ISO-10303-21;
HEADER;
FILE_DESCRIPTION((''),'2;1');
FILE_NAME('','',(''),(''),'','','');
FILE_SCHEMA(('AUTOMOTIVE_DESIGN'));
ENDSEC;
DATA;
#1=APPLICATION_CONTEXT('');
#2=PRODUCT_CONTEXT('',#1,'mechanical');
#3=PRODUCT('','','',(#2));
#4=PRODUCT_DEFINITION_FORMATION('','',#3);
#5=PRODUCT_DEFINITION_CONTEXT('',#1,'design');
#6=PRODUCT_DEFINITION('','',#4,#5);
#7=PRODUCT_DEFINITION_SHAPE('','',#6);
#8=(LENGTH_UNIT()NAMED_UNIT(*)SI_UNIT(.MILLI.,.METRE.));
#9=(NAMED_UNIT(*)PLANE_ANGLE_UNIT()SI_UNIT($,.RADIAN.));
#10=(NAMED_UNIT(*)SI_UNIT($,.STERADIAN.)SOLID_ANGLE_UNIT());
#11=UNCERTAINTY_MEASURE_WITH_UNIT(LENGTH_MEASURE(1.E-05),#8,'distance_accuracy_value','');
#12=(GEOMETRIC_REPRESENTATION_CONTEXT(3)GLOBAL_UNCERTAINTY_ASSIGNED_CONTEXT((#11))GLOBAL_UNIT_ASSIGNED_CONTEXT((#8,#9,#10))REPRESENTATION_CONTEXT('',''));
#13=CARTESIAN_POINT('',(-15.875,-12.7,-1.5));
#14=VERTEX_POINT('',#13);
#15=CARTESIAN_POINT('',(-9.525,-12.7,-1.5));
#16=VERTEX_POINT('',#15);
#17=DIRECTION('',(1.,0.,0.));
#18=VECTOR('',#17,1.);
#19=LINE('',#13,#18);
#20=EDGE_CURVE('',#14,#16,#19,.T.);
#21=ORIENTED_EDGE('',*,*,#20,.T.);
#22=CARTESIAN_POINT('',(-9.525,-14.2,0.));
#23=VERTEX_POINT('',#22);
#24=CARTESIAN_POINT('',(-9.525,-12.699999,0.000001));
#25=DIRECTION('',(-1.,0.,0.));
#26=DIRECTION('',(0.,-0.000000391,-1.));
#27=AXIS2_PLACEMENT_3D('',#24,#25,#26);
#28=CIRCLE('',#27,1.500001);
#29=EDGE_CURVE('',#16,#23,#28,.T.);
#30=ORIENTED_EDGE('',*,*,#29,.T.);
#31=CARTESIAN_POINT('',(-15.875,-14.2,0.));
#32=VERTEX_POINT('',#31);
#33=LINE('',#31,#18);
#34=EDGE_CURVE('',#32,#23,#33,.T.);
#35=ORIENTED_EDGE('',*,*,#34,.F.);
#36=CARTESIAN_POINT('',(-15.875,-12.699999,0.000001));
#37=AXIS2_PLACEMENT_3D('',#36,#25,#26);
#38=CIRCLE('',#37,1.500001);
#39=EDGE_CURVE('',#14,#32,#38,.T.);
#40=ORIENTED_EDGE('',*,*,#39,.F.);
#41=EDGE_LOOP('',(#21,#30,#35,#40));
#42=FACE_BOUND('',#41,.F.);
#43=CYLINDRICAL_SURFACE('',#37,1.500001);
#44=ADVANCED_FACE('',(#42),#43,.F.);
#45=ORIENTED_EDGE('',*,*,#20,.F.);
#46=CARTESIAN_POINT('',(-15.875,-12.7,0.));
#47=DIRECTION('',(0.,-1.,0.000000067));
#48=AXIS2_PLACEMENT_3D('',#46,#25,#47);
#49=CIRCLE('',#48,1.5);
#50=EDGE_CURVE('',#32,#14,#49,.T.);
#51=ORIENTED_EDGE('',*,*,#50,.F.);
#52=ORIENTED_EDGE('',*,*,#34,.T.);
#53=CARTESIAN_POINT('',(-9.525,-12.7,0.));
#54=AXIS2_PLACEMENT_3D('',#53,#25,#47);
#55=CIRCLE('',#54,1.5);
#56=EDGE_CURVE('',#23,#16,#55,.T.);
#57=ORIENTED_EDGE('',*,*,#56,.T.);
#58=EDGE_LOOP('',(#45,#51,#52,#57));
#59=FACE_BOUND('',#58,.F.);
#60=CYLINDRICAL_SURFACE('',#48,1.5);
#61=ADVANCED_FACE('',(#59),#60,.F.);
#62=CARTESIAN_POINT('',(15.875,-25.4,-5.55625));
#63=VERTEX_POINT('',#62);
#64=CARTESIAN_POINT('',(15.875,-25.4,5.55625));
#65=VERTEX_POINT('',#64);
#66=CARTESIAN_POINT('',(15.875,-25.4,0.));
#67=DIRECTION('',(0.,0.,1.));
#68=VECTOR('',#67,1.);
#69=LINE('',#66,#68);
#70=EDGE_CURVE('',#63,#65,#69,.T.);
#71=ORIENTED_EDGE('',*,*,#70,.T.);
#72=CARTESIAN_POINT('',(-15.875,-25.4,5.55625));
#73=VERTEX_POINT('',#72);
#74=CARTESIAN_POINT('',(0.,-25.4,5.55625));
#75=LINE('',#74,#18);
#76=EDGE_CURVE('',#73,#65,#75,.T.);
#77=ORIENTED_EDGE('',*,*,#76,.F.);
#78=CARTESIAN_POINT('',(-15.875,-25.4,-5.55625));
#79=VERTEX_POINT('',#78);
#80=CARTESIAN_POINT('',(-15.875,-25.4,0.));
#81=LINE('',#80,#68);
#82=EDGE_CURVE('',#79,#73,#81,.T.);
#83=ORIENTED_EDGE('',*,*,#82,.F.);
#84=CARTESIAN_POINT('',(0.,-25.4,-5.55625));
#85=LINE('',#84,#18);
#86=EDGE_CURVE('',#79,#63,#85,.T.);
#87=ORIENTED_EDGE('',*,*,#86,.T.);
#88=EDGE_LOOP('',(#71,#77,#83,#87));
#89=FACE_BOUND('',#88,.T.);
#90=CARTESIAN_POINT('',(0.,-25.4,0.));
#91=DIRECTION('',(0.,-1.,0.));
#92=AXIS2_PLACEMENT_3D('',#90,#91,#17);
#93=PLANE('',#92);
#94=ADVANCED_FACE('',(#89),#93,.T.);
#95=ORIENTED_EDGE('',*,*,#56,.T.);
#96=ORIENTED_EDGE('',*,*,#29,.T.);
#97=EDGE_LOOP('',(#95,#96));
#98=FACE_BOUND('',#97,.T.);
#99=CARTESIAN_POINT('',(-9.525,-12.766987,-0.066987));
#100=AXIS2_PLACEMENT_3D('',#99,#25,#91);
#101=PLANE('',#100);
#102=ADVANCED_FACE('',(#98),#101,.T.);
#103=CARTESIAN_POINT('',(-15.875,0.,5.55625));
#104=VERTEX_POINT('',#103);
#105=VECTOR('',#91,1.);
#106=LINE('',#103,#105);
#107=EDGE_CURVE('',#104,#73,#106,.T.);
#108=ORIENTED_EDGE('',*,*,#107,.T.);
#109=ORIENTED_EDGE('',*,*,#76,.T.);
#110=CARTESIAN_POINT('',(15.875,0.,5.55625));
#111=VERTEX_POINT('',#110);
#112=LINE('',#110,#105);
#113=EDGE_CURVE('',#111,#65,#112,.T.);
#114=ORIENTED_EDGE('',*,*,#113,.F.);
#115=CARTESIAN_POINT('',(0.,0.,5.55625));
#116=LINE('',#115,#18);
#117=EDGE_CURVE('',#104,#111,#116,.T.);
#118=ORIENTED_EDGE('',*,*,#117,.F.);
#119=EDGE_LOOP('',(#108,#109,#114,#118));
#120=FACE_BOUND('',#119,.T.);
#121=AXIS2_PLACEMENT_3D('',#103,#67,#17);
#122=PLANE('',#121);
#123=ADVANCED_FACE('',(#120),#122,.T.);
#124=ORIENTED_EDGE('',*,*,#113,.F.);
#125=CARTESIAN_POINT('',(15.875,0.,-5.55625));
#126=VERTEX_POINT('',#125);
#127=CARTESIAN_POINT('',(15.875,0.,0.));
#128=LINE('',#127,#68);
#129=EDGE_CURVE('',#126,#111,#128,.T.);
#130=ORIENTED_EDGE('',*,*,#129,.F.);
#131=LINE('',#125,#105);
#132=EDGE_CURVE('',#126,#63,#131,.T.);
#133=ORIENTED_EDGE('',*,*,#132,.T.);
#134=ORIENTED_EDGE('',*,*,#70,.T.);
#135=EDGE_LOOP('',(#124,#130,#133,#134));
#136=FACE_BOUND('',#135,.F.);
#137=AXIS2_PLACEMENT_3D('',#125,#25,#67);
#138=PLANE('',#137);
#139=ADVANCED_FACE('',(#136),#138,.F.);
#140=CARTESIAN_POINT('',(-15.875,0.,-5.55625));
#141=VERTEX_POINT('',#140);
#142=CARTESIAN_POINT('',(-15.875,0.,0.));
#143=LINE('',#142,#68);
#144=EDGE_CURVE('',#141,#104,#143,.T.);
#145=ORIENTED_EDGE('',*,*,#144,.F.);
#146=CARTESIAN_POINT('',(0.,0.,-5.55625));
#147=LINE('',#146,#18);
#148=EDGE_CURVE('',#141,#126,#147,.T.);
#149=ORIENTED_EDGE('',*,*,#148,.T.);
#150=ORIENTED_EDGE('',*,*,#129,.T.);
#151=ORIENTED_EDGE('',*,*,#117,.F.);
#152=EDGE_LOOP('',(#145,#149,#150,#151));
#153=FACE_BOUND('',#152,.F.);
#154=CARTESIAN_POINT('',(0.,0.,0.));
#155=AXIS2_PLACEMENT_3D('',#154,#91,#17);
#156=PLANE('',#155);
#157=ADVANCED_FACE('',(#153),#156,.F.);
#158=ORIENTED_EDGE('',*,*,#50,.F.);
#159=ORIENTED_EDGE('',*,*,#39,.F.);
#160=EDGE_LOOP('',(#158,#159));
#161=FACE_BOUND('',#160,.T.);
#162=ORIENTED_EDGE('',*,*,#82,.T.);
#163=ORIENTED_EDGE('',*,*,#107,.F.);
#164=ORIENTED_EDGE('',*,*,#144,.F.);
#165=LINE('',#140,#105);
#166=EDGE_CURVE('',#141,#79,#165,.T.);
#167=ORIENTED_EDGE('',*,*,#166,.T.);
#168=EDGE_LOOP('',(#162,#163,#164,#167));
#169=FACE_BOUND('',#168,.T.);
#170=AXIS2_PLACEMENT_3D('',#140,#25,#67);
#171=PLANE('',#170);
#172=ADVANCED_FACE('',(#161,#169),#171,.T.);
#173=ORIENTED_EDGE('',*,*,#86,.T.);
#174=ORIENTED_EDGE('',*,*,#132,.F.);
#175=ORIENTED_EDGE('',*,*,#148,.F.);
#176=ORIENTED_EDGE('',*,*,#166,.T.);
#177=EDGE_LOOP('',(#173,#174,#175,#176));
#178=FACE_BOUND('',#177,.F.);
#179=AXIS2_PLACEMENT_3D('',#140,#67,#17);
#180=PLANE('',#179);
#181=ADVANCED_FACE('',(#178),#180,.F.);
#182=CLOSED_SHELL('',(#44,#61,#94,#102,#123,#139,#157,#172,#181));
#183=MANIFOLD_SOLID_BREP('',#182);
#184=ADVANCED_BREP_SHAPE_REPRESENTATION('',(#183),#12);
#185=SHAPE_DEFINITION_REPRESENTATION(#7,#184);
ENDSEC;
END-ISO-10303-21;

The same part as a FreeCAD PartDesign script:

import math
import FreeCAD as App
import Part
import Sketcher

V = App.Vector
Q = App.Units.Quantity


def add_polygon(sketch, points):
    """Adds a closed chain of lines whose ends are joined by coincident constraints."""
    first, n = sketch.GeometryCount, len(points)
    for a, b in zip(points, points[1:] + points[:1]):
        sketch.addGeometry(Part.LineSegment(App.Vector(*a, 0), App.Vector(*b, 0)), False)
    for i in range(n):
        sketch.addConstraint(Sketcher.Constraint("Coincident", first + i, 2, first + (i + 1) % n, 1))

doc = App.newDocument("Part")
body = doc.addObject("PartDesign::Body", "Body")

# Sketch on XZ plane
sketch1 = body.newObject("Sketcher::SketchObject", "Sketch")
sketch1.AttachmentSupport = (doc.getObject("XZ_Plane"), [""])
sketch1.MapMode = "FlatFace"
add_polygon(sketch1, [(-16, 6), (-16, -6), (16, -6), (16, 6)])  # lines 0-3
sketch1.addConstraint([
    Sketcher.Constraint("Vertical", 0),
    Sketcher.Constraint("Horizontal", 1),
    Sketcher.Constraint("Vertical", 2),
    Sketcher.Constraint("Horizontal", 3),
    Sketcher.Constraint("Symmetric", 0, 2, 2, 2, -1, 1),
    Sketcher.Constraint("DistanceX", 1, 1, 1, 2, Q("1.25 in")),
    Sketcher.Constraint("DistanceY", 0, 2, 0, 1, Q("0.4375 in")),
])
pad1 = body.newObject("PartDesign::Pad", "Pad")
pad1.Profile = sketch1
pad1.Length = Q("1 in")

# Sketch on YZ plane
sketch2 = body.newObject("Sketcher::SketchObject", "Sketch001")
sketch2.AttachmentSupport = (doc.getObject("YZ_Plane"), [""])
sketch2.MapMode = "FlatFace"
sketch2.AttachmentOffset = App.Placement(V(0, 0, -0.625 * 25.4), App.Rotation())
sketch2.addGeometry([
    Part.ArcOfCircle(Part.Circle(V(-12.7, 0, 0), V(0, 0, 1), 1.5), math.radians(-180), math.radians(-90)),
    Part.ArcOfCircle(Part.Circle(V(-12.7, 0, 0), V(0, 0, 1), 1.5), math.radians(-90), math.radians(180)),
], False)
sketch2.addConstraint([
    Sketcher.Constraint("Tangent", 0, 1, 1, 2),
    Sketcher.Constraint("Coincident", 1, 1, 0, 2),
    Sketcher.Constraint("PointOnObject", 0, 3, -1),
    Sketcher.Constraint("PointOnObject", 0, 1, -1),
    Sketcher.Constraint("Vertical", 0, 3, 1, 1),
    Sketcher.Constraint("DistanceX", 0, 3, -1, 1, Q("0.5 in")),
    Sketcher.Constraint("Radius", 0, Q("1.500001 mm")),
])
pocket1 = body.newObject("PartDesign::Pocket", "Pocket")
pocket1.Profile = sketch2
pocket1.Length = Q("0.25 in")
pocket1.Reversed = True

doc.recompute()
